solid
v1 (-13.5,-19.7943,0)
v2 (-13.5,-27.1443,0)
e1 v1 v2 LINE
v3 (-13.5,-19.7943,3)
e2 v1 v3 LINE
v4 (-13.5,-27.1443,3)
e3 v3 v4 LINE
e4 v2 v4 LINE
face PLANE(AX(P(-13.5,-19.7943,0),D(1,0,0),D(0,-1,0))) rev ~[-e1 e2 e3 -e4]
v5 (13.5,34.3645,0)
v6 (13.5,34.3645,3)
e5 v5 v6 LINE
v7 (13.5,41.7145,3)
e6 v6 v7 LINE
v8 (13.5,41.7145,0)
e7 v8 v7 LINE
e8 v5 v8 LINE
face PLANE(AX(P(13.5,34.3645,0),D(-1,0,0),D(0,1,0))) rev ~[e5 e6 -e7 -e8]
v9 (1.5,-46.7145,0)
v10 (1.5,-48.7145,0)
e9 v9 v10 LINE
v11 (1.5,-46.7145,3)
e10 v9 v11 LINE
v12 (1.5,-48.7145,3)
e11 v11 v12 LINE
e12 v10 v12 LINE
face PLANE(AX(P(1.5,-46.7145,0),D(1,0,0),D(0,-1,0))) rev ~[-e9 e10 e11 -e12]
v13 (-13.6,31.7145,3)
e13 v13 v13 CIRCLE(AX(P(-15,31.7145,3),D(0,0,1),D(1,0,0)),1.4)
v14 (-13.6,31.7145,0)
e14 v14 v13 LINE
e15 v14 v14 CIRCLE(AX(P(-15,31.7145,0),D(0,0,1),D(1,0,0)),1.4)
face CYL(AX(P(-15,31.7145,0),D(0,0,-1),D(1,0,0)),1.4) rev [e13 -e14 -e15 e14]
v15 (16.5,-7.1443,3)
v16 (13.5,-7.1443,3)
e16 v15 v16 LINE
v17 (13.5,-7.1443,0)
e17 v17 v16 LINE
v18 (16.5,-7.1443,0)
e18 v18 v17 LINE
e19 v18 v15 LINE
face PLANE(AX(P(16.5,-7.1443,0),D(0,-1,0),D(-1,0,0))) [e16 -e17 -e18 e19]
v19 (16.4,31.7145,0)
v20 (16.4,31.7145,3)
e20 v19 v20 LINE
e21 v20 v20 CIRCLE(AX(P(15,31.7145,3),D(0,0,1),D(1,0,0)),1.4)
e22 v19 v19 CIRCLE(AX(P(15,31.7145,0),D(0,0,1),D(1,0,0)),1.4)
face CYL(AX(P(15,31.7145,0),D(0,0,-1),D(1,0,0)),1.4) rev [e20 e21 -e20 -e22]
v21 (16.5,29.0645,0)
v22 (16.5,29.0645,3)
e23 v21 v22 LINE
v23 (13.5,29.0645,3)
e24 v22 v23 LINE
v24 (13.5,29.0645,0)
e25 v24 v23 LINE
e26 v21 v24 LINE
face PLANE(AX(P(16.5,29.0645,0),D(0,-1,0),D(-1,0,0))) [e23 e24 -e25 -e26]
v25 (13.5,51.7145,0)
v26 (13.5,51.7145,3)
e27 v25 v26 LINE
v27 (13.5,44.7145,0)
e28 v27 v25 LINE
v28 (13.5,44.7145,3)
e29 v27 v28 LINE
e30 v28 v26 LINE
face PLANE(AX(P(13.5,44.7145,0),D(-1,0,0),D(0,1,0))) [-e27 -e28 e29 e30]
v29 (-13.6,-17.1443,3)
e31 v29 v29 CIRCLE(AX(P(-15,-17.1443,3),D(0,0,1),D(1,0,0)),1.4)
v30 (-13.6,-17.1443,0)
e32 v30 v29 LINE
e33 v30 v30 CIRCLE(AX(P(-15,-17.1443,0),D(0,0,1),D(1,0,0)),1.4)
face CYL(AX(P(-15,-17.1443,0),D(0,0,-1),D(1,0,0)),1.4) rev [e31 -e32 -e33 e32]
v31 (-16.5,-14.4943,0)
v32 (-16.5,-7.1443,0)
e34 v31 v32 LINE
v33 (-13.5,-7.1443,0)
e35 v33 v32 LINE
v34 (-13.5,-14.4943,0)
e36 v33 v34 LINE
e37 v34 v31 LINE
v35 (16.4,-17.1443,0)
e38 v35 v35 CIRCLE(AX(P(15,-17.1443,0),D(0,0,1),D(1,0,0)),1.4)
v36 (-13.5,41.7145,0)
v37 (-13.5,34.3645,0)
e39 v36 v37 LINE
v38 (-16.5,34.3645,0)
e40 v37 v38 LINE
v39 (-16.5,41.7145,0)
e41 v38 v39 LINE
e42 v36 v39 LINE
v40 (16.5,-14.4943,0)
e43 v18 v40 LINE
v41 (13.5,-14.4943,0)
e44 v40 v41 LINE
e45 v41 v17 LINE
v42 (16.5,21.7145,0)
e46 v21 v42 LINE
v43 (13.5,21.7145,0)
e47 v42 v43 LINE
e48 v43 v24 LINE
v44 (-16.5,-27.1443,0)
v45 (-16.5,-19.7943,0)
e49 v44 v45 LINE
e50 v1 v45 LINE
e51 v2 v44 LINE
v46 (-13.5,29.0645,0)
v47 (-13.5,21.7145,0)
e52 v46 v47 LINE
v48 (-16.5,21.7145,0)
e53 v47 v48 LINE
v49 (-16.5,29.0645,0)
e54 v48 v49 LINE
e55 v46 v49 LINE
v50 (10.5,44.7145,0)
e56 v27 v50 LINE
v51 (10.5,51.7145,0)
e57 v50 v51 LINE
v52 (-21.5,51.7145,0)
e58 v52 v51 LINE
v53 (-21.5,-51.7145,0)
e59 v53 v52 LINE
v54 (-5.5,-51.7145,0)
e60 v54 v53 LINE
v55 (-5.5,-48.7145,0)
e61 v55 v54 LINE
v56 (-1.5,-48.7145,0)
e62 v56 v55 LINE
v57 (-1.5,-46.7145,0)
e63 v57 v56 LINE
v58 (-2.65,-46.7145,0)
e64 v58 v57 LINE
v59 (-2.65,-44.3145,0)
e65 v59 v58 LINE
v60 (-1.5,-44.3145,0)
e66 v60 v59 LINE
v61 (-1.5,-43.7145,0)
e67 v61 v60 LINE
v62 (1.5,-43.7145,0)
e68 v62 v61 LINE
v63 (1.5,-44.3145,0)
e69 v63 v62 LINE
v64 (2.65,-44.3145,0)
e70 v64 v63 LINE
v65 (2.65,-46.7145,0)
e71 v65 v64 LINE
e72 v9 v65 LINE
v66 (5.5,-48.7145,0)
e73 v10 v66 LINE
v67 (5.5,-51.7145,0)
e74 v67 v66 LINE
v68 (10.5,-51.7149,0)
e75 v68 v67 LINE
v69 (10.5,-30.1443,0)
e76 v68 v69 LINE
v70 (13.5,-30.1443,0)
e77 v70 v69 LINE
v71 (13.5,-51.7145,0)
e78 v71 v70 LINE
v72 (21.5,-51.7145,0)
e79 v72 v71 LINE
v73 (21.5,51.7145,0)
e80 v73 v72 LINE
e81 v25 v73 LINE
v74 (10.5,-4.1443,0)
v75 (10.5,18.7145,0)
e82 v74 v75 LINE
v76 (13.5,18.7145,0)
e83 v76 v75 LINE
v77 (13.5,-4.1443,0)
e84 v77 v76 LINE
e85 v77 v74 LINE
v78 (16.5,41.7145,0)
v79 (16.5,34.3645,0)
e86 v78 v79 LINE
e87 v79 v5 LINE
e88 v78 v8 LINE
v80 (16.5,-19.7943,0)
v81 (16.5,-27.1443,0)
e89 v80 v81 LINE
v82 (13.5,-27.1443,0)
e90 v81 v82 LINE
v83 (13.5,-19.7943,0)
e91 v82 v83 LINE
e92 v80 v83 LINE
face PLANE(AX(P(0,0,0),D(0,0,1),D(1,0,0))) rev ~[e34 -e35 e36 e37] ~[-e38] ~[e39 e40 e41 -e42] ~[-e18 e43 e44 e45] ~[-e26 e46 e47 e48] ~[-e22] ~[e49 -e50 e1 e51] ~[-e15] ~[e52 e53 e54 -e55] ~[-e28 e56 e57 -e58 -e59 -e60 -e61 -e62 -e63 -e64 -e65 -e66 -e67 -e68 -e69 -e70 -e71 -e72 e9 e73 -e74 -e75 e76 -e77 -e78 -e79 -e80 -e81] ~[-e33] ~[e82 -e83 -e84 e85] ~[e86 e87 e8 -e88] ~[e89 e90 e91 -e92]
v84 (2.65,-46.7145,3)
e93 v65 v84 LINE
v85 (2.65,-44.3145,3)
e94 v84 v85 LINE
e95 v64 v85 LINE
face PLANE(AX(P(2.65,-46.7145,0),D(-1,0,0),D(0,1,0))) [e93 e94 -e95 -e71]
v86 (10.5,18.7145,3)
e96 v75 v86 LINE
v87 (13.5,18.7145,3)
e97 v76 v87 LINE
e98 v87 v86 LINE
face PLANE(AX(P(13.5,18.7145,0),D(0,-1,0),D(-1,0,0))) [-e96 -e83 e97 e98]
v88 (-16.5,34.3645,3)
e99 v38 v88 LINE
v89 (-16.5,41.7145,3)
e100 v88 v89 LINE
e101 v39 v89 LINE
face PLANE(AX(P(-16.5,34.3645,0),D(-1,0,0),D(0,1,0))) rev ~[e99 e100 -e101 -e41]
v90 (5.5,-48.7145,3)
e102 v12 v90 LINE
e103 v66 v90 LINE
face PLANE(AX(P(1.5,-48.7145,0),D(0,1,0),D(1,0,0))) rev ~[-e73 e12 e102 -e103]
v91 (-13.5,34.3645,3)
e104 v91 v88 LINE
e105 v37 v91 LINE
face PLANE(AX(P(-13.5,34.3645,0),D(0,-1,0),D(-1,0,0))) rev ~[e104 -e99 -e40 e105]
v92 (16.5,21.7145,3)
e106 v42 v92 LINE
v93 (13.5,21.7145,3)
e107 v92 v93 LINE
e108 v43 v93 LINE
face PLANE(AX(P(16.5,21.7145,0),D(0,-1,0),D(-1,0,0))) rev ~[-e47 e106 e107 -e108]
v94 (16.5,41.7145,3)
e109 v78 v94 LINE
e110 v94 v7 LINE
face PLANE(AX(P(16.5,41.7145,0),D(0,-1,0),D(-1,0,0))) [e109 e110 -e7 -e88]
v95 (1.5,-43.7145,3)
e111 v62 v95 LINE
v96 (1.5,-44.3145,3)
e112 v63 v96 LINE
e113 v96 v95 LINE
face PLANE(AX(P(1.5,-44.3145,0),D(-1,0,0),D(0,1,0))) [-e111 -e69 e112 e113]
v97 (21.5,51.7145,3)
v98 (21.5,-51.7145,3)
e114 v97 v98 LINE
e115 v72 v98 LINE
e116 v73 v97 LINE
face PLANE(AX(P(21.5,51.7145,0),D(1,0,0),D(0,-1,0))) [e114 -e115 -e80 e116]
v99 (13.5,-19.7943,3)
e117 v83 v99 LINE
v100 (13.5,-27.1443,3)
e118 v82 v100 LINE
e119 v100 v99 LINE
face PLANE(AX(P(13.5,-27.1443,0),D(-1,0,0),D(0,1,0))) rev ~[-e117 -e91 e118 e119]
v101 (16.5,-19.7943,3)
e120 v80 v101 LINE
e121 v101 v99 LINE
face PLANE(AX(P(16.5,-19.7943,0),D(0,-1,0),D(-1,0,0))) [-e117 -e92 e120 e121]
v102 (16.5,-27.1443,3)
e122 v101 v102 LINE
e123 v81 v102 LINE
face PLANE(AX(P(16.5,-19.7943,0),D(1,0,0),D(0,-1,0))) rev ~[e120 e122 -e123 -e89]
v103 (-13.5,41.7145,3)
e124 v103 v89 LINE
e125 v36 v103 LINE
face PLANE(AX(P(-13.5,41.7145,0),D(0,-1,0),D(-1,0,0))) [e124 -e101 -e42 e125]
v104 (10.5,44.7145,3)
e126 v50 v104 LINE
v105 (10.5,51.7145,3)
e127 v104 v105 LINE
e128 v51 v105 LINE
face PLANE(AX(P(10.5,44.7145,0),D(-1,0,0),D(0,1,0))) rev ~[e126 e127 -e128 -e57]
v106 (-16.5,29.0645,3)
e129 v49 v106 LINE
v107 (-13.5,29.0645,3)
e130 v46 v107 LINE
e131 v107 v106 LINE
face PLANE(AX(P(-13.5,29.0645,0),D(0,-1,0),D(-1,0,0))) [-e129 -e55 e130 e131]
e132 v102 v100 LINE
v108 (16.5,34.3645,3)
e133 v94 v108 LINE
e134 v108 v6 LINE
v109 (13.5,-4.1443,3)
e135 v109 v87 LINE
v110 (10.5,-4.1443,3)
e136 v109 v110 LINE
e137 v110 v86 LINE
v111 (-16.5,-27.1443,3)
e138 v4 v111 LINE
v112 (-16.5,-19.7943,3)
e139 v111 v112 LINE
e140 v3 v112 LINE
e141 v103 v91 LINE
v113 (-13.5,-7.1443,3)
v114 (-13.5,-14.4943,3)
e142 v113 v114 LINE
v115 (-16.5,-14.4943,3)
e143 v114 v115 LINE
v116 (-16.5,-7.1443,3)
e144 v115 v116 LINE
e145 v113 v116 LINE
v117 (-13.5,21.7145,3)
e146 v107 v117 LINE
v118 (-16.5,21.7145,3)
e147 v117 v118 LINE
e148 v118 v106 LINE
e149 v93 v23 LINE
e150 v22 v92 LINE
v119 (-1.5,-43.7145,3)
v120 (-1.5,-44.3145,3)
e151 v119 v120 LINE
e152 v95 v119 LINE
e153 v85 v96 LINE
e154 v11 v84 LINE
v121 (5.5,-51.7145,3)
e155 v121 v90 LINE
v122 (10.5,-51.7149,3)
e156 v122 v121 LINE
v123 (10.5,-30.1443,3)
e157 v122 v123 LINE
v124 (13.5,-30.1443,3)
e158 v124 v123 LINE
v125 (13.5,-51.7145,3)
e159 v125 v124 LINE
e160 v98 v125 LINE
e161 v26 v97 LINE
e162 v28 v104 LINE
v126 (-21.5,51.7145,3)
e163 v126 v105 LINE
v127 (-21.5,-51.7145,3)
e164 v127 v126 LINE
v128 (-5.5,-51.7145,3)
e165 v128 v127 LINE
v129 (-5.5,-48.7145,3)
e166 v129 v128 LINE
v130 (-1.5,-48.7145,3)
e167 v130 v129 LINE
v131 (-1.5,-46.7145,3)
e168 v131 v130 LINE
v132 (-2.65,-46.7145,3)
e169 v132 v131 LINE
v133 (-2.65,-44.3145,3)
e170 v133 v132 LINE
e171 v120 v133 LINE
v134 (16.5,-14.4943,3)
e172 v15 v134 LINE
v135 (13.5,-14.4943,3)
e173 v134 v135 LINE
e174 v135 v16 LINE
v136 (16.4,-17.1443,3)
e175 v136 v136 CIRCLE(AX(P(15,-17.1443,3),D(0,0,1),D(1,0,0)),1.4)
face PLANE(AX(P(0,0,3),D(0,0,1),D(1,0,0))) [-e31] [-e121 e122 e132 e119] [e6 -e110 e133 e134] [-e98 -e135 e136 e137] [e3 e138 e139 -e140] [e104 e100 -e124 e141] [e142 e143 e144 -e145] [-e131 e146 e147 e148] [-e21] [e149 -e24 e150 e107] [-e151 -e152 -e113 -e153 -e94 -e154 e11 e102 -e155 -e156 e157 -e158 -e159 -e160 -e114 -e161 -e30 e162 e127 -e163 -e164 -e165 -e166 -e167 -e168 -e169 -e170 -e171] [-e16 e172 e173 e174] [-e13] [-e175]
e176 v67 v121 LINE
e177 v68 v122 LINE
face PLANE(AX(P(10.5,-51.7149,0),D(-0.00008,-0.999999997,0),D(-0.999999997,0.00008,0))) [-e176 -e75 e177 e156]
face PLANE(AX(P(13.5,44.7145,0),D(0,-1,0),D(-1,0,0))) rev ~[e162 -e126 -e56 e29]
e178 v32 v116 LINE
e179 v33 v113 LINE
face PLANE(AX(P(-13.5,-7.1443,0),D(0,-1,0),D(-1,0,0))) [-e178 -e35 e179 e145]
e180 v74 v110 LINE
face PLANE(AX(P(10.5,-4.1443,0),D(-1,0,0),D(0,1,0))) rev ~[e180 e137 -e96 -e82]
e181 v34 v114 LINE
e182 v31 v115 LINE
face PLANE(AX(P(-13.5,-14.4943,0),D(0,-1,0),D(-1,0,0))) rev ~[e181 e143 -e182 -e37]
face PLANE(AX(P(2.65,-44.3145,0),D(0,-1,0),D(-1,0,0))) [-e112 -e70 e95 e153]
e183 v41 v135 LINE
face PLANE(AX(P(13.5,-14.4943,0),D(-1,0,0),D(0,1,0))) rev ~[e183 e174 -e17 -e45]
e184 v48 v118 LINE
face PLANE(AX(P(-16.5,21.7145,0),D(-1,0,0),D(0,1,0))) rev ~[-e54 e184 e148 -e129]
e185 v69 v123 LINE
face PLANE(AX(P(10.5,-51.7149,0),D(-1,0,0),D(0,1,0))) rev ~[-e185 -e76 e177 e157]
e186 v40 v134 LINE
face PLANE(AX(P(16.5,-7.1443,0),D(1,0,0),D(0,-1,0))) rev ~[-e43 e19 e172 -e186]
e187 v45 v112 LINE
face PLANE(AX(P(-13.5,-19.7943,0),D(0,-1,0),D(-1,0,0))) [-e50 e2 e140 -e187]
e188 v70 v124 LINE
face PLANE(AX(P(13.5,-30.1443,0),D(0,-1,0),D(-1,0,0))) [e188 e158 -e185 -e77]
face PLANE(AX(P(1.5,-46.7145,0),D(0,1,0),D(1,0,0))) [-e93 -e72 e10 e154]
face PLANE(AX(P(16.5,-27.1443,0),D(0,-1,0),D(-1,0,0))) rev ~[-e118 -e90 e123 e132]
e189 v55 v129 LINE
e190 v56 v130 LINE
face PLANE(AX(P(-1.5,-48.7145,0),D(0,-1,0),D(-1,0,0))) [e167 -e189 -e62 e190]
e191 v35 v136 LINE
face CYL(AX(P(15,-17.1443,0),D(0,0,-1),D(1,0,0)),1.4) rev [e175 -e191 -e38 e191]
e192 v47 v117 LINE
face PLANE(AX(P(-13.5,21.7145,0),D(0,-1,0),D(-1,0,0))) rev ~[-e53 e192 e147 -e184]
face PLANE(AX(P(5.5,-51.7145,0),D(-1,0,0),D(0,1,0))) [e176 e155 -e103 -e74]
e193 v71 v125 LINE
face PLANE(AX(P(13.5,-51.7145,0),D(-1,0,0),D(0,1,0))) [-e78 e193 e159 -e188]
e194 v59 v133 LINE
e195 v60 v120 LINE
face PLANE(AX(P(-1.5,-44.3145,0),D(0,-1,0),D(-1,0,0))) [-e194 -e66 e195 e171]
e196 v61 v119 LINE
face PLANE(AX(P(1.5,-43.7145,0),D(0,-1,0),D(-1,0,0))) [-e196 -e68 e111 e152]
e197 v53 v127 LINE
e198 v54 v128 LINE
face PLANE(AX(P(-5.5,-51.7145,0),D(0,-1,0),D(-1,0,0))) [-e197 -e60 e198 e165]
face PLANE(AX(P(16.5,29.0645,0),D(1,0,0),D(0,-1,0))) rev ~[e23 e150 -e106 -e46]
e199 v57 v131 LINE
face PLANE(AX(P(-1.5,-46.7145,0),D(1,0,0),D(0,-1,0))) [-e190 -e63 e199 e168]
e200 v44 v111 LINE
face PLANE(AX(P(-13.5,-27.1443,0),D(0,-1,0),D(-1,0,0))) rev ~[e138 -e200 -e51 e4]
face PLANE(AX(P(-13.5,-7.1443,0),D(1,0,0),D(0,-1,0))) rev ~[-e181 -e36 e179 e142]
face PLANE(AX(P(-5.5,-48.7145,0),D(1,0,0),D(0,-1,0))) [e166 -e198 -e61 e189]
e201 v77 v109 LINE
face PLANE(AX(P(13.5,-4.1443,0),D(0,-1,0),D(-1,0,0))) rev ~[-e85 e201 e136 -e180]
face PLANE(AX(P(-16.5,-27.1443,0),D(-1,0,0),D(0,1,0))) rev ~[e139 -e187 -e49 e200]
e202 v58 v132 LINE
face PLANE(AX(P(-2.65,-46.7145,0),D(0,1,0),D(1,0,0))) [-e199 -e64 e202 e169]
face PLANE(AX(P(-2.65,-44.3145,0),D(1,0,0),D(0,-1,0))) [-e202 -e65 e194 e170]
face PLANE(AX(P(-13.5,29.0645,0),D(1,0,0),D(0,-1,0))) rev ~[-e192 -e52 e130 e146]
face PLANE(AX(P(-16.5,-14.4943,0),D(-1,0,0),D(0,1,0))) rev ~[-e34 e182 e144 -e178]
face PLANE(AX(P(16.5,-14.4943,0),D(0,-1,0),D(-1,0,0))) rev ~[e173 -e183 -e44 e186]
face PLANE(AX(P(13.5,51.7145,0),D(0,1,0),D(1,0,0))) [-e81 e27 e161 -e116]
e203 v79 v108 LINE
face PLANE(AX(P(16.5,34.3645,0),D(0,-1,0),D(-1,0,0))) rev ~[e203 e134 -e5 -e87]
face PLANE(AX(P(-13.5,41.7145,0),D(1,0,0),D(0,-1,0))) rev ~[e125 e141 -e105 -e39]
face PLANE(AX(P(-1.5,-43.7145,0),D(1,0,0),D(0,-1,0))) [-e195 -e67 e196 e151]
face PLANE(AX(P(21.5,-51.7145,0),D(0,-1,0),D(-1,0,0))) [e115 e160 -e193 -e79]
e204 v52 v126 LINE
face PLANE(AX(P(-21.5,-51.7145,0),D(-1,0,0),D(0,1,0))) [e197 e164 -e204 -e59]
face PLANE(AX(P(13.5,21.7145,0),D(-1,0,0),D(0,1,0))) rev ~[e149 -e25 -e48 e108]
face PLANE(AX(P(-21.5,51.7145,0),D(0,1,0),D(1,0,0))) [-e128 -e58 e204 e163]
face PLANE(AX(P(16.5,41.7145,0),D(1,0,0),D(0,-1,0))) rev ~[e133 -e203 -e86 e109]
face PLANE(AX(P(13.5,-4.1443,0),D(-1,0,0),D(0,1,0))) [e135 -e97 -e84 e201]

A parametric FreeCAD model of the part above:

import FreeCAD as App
import Part
import Sketcher
from FreeCAD import Vector


def add_polygon(sketch, points):
    """Adds a closed chain of lines whose ends are joined by coincident constraints."""
    first, n = sketch.GeometryCount, len(points)
    for a, b in zip(points, points[1:] + points[:1]):
        sketch.addGeometry(Part.LineSegment(App.Vector(*a, 0), App.Vector(*b, 0)), False)
    for i in range(n):
        sketch.addConstraint(Sketcher.Constraint("Coincident", first + i, 2, first + (i + 1) % n, 1))

doc = App.newDocument("Part")
body = doc.addObject("PartDesign::Body", "Body")

# Sketch on XY plane
sketch1 = doc.addObject("Sketcher::SketchObject", "Sketch")
body.addObject(sketch1)
sketch1.AttachmentSupport = (doc.XY_Plane, [""])
sketch1.MapMode = "FlatFace"
add_polygon(sketch1, [(10.5, 51.7), (-21.5, 51.7), (-21.5, -51.7), (-5.5, -51.7), (-5.5, -48.7), (-1.5, -48.7), (-1.5, -46.7), (-2.6, -46.7), (-2.6, -44.3), (-1.5, -44.3), (-1.5, -43.7), (1.5, -43.7), (1.5, -44.3), (2.6, -44.3), (2.6, -46.7), (1.5, -46.7), (1.5, -48.7), (5.5, -48.7), (5.5, -51.7), (10.5, -51.7), (10.5, -30.1), (13.5, -30.1), (13.5, -51.7), (21.5, -51.7), (21.5, 51.7), (13.5, 51.7), (13.5, 44.7), (10.5, 44.7)])  # lines 0-27
add_polygon(sketch1, [(-16.5, -19.8), (-13.5, -19.8), (-13.5, -27.1), (-16.5, -27.1)])  # lines 28-31
sketch1.addGeometry(Part.Circle(Vector(-15, -17.1, 0), Vector(0, 0, 1), 1.4), False)  # 32
add_polygon(sketch1, [(-16.5, -7.1), (-13.5, -7.1), (-13.5, -14.5), (-16.5, -14.5)])  # lines 33-36
add_polygon(sketch1, [(13.5, -19.8), (16.5, -19.8), (16.5, -27.1), (13.5, -27.1)])  # lines 37-40
sketch1.addGeometry(Part.Circle(Vector(15, -17.1, 0), Vector(0, 0, 1), 1.4), False)  # 41
add_polygon(sketch1, [(13.5, -7.1), (16.5, -7.1), (16.5, -14.5), (13.5, -14.5)])  # lines 42-45
add_polygon(sketch1, [(-16.5, 29.1), (-13.5, 29.1), (-13.5, 21.7), (-16.5, 21.7)])  # lines 46-49
sketch1.addGeometry(Part.Circle(Vector(-15, 31.7, 0), Vector(0, 0, 1), 1.4), False)  # 50
add_polygon(sketch1, [(-16.5, 41.7), (-13.5, 41.7), (-13.5, 34.4), (-16.5, 34.4)])  # lines 51-54
add_polygon(sketch1, [(13.5, 18.7), (13.5, -4.1), (10.5, -4.1), (10.5, 18.7)])  # lines 55-58
add_polygon(sketch1, [(13.5, 29.1), (16.5, 29.1), (16.5, 21.7), (13.5, 21.7)])  # lines 59-62
sketch1.addGeometry(Part.Circle(Vector(15, 31.7, 0), Vector(0, 0, 1), 1.4), False)  # 63
add_polygon(sketch1, [(13.5, 41.7), (16.5, 41.7), (16.5, 34.4), (13.5, 34.4)])  # lines 64-67
sketch1.addConstraint([
    Sketcher.Constraint("Horizontal", 0),
    Sketcher.Constraint("Vertical", 1),
    Sketcher.Constraint("Horizontal", 2),
    Sketcher.Constraint("Vertical", 3),
    Sketcher.Constraint("Horizontal", 4),
    Sketcher.Constraint("Vertical", 5),
    Sketcher.Constraint("Horizontal", 6),
    Sketcher.Constraint("Vertical", 7),
    Sketcher.Constraint("Horizontal", 8),
    Sketcher.Constraint("Vertical", 9),
    Sketcher.Constraint("Horizontal", 10),
    Sketcher.Constraint("Vertical", 11),
    Sketcher.Constraint("Horizontal", 12),
    Sketcher.Constraint("Vertical", 13),
    Sketcher.Constraint("Horizontal", 14),
    Sketcher.Constraint("Vertical", 15),
    Sketcher.Constraint("Horizontal", 16),
    Sketcher.Constraint("Vertical", 17),
    Sketcher.Constraint("Vertical", 19),
    Sketcher.Constraint("Horizontal", 20),
    Sketcher.Constraint("Vertical", 21),
    Sketcher.Constraint("Horizontal", 22),
    Sketcher.Constraint("Vertical", 23),
    Sketcher.Constraint("Horizontal", 24),
    Sketcher.Constraint("Vertical", 25),
    Sketcher.Constraint("Horizontal", 26),
    Sketcher.Constraint("Vertical", 27),
    Sketcher.Constraint("Horizontal", 28),
    Sketcher.Constraint("Vertical", 29),
    Sketcher.Constraint("Horizontal", 30),
    Sketcher.Constraint("Vertical", 31),
    Sketcher.Constraint("Horizontal", 33),
    Sketcher.Constraint("Vertical", 34),
    Sketcher.Constraint("Horizontal", 35),
    Sketcher.Constraint("Vertical", 36),
    Sketcher.Constraint("Horizontal", 37),
    Sketcher.Constraint("Vertical", 38),
    Sketcher.Constraint("Horizontal", 39),
    Sketcher.Constraint("Vertical", 40),
    Sketcher.Constraint("Horizontal", 42),
    Sketcher.Constraint("Vertical", 43),
    Sketcher.Constraint("Horizontal", 44),
    Sketcher.Constraint("Vertical", 45),
    Sketcher.Constraint("Horizontal", 46),
    Sketcher.Constraint("Vertical", 47),
    Sketcher.Constraint("Horizontal", 48),
    Sketcher.Constraint("Vertical", 49),
    Sketcher.Constraint("Horizontal", 51),
    Sketcher.Constraint("Vertical", 52),
    Sketcher.Constraint("Horizontal", 53),
    Sketcher.Constraint("Vertical", 54),
    Sketcher.Constraint("Vertical", 55),
    Sketcher.Constraint("Horizontal", 56),
    Sketcher.Constraint("Vertical", 57),
    Sketcher.Constraint("Horizontal", 58),
    Sketcher.Constraint("Horizontal", 59),
    Sketcher.Constraint("Vertical", 60),
    Sketcher.Constraint("Horizontal", 61),
    Sketcher.Constraint("Vertical", 62),
    Sketcher.Constraint("Horizontal", 64),
    Sketcher.Constraint("Vertical", 65),
    Sketcher.Constraint("Horizontal", 66),
    Sketcher.Constraint("Vertical", 67),
    Sketcher.Constraint("Equal", 32, 41),
    Sketcher.Constraint("Equal", 41, 50),
    Sketcher.Constraint("Equal", 50, 63),
    Sketcher.Constraint("Symmetric", 0, 2, 22, 2, -1, 1),
    Sketcher.Constraint("Symmetric", 32, 3, 41, 3, -2),
    Sketcher.Constraint("Symmetric", 50, 3, 63, 3, -2),
    Sketcher.Constraint("Symmetric", 8, 2, 11, 2, -2),
    Sketcher.Constraint("Symmetric", 6, 2, 13, 2, -2),
    Sketcher.Constraint("Symmetric", 4, 2, 15, 2, -2),
    Sketcher.Constraint("Symmetric", 2, 2, 17, 2, -2),
    Sketcher.Constraint("Symmetric", 31, 2, 37, 2, -2),
    Sketcher.Constraint("Symmetric", 29, 2, 39, 2, -2),
    Sketcher.Constraint("Symmetric", 36, 2, 42, 2, -2),
    Sketcher.Constraint("Symmetric", 34, 2, 44, 2, -2),
    Sketcher.Constraint("Symmetric", 49, 2, 59, 2, -2),
    Sketcher.Constraint("Symmetric", 47, 2, 61, 2, -2),
    Sketcher.Constraint("Symmetric", 54, 2, 64, 2, -2),
    Sketcher.Constraint("Symmetric", 52, 2, 66, 2, -2),
    Sketcher.Constraint("Symmetric", 21, 2, 24, 2, -1),
    Sketcher.Constraint("Symmetric", 18, 2, 27, 2, -1),
    Sketcher.Constraint("Horizontal", 17, 2, 21, 2),
    Sketcher.Constraint("Vertical", 32, 3, 50, 3),
    Sketcher.Constraint("Vertical", 5, 2, 8, 2),
    Sketcher.Constraint("Vertical", 29, 2, 33, 2),
    Sketcher.Constraint("Vertical", 31, 2, 35, 2),
    Sketcher.Constraint("Vertical", 25, 2, 39, 2),
    Sketcher.Constraint("Vertical", 34, 2, 46, 2),
    Sketcher.Constraint("Vertical", 36, 2, 48, 2),
    Sketcher.Constraint("Vertical", 47, 2, 51, 2),
    Sketcher.Constraint("Vertical", 49, 2, 53, 2),
    Sketcher.Constraint("Vertical", 45, 2, 55, 2),
    Sketcher.Constraint("Vertical", 27, 2, 56, 2),
    Sketcher.Constraint("Equal", 10, 20),
    Sketcher.Constraint("Equal", 26, 28),
    Sketcher.Constraint("Equal", 66, 3),
    Sketcher.Constraint("Equal", 31, 34),
    Sketcher.Constraint("Equal", 45, 47),
    Sketcher.Constraint("Equal", 49, 52),
    Sketcher.Constraint("Diameter", 32, 2.8),
    Sketcher.Constraint("DistanceX", 10, 1, 10, 2, 3.0),
    Sketcher.Constraint("DistanceX", 22, 1, 22, 2, 8.0),
    Sketcher.Constraint("Distance", 18, 5.0),
    Sketcher.Constraint("DistanceY", 7, 1, 7, 2, 2.4),
    Sketcher.Constraint("DistanceX", 0, 2, 0, 1, 32.0),
    Sketcher.Constraint("DistanceY", 1, 2, 1, 1, 103.429),
    Sketcher.Constraint("DistanceY", 5, 1, 5, 2, 2.0),
    Sketcher.Constraint("DistanceY", 25, 2, 25, 1, 7.0),
    Sketcher.Constraint("DistanceY", 9, 1, 9, 2, 0.6),
    Sketcher.Constraint("DistanceX", 32, 3, -1, 1, 15.0),
    Sketcher.Constraint("DistanceX", 6, 2, 6, 1, 1.15),
    Sketcher.Constraint("DistanceY", 29, 2, 29, 1, 7.35),
    Sketcher.Constraint("DistanceY", 19, 1, 19, 2, 21.5706),
    Sketcher.Constraint("DistanceY", 55, 2, 55, 1, 22.8588),
    Sketcher.Constraint("DistanceY", 32, 3, -1, 1, 17.1443),
    Sketcher.Constraint("DistanceY", -1, 1, 50, 3, 31.7145),
    Sketcher.Constraint("DistanceY", 28, 2, -1, 1, 19.7943),
    Sketcher.Constraint("DistanceY", 33, 2, -1, 1, 7.1443),
    Sketcher.Constraint("DistanceY", -1, 1, 46, 2, 29.0645),
    Sketcher.Constraint("DistanceY", -1, 1, 51, 2, 41.7145),
    Sketcher.Constraint("DistanceY", 55, 2, -1, 1, 4.1443),
])
pad1 = doc.addObject("PartDesign::Pad", "Pad")
body.addObject(pad1)
pad1.Profile = sketch1
pad1.Length = 3

doc.recompute()
